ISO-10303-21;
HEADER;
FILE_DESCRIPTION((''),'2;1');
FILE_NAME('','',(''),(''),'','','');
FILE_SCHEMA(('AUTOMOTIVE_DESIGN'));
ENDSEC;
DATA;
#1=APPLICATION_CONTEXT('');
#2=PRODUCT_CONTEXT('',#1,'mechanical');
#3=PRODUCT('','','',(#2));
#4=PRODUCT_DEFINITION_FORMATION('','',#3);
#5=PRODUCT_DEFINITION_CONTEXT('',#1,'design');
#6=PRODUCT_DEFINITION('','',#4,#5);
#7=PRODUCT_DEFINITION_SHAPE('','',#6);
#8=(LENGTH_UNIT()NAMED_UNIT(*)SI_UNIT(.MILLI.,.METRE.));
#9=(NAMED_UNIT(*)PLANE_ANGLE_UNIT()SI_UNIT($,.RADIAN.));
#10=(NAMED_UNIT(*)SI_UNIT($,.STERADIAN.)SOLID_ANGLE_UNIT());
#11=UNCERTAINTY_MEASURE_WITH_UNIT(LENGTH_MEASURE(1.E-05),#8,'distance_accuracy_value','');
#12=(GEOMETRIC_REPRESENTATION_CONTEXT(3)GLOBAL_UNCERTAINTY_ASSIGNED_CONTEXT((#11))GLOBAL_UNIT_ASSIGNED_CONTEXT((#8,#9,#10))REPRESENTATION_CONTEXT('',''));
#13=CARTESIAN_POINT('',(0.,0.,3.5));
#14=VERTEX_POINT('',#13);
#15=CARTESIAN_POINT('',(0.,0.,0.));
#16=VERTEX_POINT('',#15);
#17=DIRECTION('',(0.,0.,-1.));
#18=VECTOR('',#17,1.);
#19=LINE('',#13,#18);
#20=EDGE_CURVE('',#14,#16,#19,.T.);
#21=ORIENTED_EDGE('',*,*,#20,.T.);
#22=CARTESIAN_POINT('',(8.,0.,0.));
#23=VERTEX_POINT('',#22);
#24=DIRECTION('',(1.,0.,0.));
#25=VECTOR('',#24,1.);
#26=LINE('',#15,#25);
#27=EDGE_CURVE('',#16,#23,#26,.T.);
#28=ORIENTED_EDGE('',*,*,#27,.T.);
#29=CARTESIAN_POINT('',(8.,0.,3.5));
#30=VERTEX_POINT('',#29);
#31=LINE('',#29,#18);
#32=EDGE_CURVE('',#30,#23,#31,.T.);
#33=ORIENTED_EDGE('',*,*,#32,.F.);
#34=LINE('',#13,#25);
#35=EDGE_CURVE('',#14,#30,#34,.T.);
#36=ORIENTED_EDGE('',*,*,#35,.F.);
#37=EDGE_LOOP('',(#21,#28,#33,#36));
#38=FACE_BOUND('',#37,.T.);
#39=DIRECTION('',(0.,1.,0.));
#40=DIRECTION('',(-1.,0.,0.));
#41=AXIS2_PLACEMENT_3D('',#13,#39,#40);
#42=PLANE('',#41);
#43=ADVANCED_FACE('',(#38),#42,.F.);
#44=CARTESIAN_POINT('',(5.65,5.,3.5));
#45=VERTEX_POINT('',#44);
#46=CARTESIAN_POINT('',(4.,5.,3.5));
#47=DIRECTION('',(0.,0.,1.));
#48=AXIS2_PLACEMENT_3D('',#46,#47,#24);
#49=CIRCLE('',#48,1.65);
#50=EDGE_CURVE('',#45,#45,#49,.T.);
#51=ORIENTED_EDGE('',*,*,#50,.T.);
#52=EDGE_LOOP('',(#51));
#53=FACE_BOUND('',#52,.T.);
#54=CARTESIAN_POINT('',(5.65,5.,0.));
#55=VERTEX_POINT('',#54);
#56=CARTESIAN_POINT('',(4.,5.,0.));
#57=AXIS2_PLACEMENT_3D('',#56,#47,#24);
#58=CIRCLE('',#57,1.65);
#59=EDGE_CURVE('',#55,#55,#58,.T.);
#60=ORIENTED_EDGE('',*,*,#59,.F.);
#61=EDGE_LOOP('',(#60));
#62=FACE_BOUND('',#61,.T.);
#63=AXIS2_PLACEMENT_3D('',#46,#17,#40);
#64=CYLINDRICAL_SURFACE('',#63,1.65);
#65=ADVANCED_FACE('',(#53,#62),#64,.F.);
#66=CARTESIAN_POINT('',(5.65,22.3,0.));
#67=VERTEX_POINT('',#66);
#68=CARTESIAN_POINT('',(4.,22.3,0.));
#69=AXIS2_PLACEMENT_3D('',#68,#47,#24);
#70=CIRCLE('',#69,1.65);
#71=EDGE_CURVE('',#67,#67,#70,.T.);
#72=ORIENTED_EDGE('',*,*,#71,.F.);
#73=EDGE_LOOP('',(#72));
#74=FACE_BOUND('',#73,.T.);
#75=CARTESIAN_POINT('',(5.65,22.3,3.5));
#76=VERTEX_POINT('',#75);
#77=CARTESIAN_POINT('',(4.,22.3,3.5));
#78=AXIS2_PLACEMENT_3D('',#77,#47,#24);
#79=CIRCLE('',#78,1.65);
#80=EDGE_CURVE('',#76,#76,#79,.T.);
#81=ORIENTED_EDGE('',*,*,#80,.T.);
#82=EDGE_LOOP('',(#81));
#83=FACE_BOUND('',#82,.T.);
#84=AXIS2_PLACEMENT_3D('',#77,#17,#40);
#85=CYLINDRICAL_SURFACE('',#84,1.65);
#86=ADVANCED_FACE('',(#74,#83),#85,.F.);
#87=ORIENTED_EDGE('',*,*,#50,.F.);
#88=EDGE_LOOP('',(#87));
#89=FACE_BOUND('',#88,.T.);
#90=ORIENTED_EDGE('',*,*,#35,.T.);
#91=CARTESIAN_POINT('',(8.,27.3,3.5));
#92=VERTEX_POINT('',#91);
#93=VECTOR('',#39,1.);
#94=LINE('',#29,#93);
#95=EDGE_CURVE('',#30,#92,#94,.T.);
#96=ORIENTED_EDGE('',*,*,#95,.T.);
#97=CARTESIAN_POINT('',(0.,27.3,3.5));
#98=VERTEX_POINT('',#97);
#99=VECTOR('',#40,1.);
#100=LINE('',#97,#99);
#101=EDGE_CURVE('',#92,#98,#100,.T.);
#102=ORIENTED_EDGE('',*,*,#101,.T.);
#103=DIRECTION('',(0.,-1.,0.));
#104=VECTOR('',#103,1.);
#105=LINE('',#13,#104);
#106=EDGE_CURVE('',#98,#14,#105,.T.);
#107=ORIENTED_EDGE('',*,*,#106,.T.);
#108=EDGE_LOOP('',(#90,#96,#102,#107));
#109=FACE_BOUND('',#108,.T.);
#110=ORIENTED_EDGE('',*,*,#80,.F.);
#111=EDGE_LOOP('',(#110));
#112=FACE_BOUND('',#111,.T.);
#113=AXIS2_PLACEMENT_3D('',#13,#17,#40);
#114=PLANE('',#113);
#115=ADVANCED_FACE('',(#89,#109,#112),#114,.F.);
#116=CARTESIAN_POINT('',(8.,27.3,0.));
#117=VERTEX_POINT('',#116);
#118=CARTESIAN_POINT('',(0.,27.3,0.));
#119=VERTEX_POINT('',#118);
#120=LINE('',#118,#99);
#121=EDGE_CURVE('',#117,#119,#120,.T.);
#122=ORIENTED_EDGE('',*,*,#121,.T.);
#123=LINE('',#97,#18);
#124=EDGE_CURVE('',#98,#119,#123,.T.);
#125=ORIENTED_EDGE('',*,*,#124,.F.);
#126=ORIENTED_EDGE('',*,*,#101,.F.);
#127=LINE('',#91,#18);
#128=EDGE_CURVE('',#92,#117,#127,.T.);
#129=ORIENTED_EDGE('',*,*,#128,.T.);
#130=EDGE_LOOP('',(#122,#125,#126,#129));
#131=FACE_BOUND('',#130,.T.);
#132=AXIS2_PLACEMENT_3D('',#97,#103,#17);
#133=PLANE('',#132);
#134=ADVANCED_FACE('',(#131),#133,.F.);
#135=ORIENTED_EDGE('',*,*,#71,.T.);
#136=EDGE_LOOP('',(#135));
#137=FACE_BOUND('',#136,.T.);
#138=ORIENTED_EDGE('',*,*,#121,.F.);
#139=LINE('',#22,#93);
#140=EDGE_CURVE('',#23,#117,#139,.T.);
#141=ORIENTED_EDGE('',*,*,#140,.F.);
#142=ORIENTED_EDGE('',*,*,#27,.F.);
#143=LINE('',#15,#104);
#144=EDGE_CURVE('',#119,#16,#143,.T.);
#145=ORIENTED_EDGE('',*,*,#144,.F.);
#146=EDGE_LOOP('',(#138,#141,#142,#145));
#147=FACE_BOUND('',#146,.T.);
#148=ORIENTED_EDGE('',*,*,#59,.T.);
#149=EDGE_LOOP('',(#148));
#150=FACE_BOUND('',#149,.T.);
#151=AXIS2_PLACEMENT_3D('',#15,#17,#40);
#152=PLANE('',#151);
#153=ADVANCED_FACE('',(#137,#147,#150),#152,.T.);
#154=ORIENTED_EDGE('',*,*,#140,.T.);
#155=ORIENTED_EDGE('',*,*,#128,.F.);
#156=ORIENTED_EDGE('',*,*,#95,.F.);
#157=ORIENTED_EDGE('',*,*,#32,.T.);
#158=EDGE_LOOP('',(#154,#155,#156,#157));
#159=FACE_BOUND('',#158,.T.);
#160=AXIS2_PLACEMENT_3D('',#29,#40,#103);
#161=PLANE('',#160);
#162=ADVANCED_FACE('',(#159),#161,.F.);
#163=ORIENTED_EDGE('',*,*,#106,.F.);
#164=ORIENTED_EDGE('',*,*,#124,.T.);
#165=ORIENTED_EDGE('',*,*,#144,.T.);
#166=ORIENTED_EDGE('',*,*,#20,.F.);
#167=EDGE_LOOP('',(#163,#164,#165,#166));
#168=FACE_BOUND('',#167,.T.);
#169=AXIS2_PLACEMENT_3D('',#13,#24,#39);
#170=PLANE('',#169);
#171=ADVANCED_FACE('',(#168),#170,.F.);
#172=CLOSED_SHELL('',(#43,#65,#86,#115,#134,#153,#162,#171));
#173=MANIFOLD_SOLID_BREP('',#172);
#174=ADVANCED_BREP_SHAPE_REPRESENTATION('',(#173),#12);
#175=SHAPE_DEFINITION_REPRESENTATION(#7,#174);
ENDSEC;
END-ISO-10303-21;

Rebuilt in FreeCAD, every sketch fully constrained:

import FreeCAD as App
import Part
import Sketcher

V = App.Vector
Q = App.Units.Quantity

doc = App.newDocument("Part")
body = doc.addObject("PartDesign::Body", "Body")

sketch1 = body.newObject("Sketcher::SketchObject", "Sketch")
sketch1.AttachmentSupport = (doc.getObject("XY_Plane"), [""])
sketch1.MapMode = "FlatFace"
sketch1.addGeometry(Part.LineSegment(V(0, 27.3, 0), V(0, 0, 0)), False)
sketch1.addGeometry(Part.LineSegment(V(0, 0, 0), V(8, 0, 0)), False)
sketch1.addGeometry(Part.LineSegment(V(8, 0, 0), V(8, 27.3, 0)), False)
sketch1.addGeometry(Part.LineSegment(V(8, 27.3, 0), V(0, 27.3, 0)), False)
sketch1.addGeometry(Part.Circle(V(4, 5, 0), V(0, 0, 1), 1.6), False)
sketch1.addGeometry(Part.Circle(V(4, 22.3, 0), V(0, 0, 1), 1.6), False)
sketch1.addConstraint(Sketcher.Constraint("Coincident", 0, 2, 1, 1))
sketch1.addConstraint(Sketcher.Constraint("Coincident", 1, 2, 2, 1))
sketch1.addConstraint(Sketcher.Constraint("Coincident", 2, 2, 3, 1))
sketch1.addConstraint(Sketcher.Constraint("Coincident", 3, 2, 0, 1))
sketch1.addConstraint(Sketcher.Constraint("Vertical", 0))
sketch1.addConstraint(Sketcher.Constraint("Horizontal", 1))
sketch1.addConstraint(Sketcher.Constraint("Vertical", 2))
sketch1.addConstraint(Sketcher.Constraint("Horizontal", 3))
sketch1.addConstraint(Sketcher.Constraint("Coincident", 0, 2, -1, 1))
sketch1.addConstraint(Sketcher.Constraint("Equal", 4, 5))
sketch1.addConstraint(Sketcher.Constraint("Vertical", 4, 3, 5, 3))
sketch1.addConstraint(Sketcher.Constraint("Diameter", 4, Q("3.3 mm")))
sketch1.addConstraint(Sketcher.Constraint("DistanceX", 1, 1, 1, 2, Q("8 mm")))
sketch1.addConstraint(Sketcher.Constraint("DistanceY", 0, 2, 0, 1, Q("27.3 mm")))
sketch1.addConstraint(Sketcher.Constraint("DistanceX", -1, 1, 4, 3, Q("4 mm")))
sketch1.addConstraint(Sketcher.Constraint("DistanceY", -1, 1, 4, 3, Q("5 mm")))
sketch1.addConstraint(Sketcher.Constraint("DistanceY", 5, 3, 2, 2, Q("5 mm")))
pad1 = body.newObject("PartDesign::Pad", "Pad")
pad1.Profile = sketch1
pad1.Length = 3.5

doc.recompute()
